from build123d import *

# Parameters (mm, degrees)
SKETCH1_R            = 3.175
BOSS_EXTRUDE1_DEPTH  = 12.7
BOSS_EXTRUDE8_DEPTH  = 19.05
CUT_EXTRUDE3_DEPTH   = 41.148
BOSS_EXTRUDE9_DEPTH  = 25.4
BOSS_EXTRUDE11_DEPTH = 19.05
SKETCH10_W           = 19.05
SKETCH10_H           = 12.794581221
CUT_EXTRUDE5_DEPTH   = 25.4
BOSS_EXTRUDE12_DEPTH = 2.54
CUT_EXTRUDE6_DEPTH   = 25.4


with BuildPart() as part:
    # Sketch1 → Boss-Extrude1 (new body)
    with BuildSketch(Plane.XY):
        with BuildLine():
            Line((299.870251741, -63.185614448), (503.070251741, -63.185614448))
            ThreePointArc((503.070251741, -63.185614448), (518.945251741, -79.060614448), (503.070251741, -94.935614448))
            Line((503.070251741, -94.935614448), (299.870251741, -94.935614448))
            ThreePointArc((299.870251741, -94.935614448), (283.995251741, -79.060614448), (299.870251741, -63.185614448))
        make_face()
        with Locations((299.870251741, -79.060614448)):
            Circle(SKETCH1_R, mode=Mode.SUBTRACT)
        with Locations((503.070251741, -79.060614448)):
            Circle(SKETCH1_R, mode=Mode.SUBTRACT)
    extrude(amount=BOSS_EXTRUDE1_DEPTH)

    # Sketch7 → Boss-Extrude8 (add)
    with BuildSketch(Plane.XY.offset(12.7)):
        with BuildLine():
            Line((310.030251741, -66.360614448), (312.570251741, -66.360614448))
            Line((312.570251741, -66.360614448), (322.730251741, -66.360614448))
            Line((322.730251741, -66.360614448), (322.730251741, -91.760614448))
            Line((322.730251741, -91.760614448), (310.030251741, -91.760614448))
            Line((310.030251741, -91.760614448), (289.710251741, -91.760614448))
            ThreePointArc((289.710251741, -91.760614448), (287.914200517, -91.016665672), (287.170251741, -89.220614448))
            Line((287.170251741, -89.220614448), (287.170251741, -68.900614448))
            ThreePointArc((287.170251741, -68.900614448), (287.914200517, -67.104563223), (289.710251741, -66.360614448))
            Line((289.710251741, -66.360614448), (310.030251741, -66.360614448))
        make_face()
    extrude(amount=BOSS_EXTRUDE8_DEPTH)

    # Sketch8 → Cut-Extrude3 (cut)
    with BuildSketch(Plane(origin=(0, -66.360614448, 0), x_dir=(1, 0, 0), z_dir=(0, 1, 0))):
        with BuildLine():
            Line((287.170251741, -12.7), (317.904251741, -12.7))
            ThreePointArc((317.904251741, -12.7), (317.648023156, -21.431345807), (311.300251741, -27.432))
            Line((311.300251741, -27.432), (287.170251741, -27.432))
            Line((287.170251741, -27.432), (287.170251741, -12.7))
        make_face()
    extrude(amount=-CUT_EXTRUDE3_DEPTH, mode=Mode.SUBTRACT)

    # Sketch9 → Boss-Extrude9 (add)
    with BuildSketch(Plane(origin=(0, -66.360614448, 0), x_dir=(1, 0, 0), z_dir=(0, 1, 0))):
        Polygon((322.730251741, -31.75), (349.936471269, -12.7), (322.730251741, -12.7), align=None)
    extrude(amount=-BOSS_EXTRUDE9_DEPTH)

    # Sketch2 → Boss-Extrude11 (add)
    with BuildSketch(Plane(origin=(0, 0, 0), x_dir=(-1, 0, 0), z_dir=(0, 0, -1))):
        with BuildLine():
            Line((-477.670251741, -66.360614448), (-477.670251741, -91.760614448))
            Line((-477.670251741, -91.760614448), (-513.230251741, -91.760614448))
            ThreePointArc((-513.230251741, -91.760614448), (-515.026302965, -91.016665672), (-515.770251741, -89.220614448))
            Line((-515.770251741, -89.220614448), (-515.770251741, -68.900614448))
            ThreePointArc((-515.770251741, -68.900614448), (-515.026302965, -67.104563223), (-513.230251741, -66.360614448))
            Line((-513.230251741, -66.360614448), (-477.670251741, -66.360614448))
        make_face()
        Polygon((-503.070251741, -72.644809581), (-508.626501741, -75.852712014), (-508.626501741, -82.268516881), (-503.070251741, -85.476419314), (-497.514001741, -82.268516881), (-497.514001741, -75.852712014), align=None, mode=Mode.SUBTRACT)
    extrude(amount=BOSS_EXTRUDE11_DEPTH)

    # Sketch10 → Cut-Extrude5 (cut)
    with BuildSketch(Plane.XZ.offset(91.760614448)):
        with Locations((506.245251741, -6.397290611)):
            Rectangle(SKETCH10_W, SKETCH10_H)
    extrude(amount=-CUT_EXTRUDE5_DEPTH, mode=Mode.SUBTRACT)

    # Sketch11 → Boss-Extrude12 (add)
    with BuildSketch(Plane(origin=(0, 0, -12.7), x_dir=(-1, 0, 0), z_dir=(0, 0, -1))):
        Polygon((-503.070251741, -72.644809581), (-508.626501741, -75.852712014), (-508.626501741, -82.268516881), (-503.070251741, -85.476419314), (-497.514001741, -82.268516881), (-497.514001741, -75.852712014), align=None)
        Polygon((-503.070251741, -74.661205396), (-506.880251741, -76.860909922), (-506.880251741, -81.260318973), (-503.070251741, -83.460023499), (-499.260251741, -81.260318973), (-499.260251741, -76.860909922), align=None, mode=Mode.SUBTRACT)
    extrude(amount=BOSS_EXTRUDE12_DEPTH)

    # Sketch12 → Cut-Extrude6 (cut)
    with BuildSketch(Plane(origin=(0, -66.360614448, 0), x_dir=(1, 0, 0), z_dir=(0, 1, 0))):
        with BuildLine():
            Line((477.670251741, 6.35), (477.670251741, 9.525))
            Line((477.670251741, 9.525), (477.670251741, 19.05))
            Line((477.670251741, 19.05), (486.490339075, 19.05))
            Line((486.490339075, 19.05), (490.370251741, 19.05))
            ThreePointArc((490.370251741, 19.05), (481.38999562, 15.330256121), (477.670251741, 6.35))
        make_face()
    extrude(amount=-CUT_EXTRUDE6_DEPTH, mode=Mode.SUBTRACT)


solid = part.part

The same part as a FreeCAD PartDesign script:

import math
import FreeCAD as App
import Part
import Sketcher
Q = App.Units.Quantity


def add_polygon(sketch, points):
    """Adds a closed chain of lines whose ends are joined by coincident constraints."""
    first, n = sketch.GeometryCount, len(points)
    for a, b in zip(points, points[1:] + points[:1]):
        sketch.addGeometry(Part.LineSegment(App.Vector(*a, 0), App.Vector(*b, 0)), False)
    for i in range(n):
        sketch.addConstraint(Sketcher.Constraint("Coincident", first + i, 2, first + (i + 1) % n, 1))

doc = App.newDocument("Part")
body = doc.addObject("PartDesign::Body", "Body")

# Sketch on XY plane
sketch1 = body.newObject("Sketcher::SketchObject", "Sketch")
sketch1.AttachmentSupport = (doc.getObject("XY_Plane"), [""])
sketch1.MapMode = "FlatFace"
sketch1.addGeometry([
    Part.LineSegment(App.Vector(503.1, -63.2, 0), App.Vector(299.9, -63.2, 0)),  # 0
    Part.ArcOfCircle(Part.Circle(App.Vector(299.9, -79.1, 0), App.Vector(0, 0, 1), 15.9), math.radians(90), math.radians(270)),  # 1
    Part.LineSegment(App.Vector(299.9, -94.9, 0), App.Vector(503.1, -94.9, 0)),  # 2
    Part.ArcOfCircle(Part.Circle(App.Vector(503.1, -79.1, 0), App.Vector(0, 0, 1), 15.9), math.radians(-90), math.radians(90)),  # 3
    Part.Circle(App.Vector(503.1, -79.1, 0), App.Vector(0, 0, 1), 3.2),  # 4
    Part.Circle(App.Vector(299.9, -79.1, 0), App.Vector(0, 0, 1), 3.2),  # 5
], False)
sketch1.addConstraint([
    Sketcher.Constraint("Tangent", 0, 2, 1, 1),
    Sketcher.Constraint("Tangent", 1, 2, 2, 1),
    Sketcher.Constraint("Tangent", 2, 2, 3, 1),
    Sketcher.Constraint("Tangent", 3, 2, 0, 1),
    Sketcher.Constraint("Horizontal", 0),
    Sketcher.Constraint("Horizontal", 2),
    Sketcher.Constraint("Coincident", 4, 3, 3, 3),
    Sketcher.Constraint("Coincident", 5, 3, 1, 3),
    Sketcher.Constraint("Equal", 4, 5),
    Sketcher.Constraint("Diameter", 4, Q("0.25 in")),
    Sketcher.Constraint("DistanceX", 0, 2, 0, 1, Q("8 in")),
    Sketcher.Constraint("Radius", 1, Q("0.625 in")),
    Sketcher.Constraint("DistanceX", -1, 1, 1, 3, 299.870252),
    Sketcher.Constraint("DistanceY", 1, 3, -1, 1, 79.060614),
])
pad1 = body.newObject("PartDesign::Pad", "Pad")
pad1.Profile = sketch1
pad1.Length = Q("0.5 in")

# Sketch on XY plane
sketch2 = body.newObject("Sketcher::SketchObject", "Sketch001")
sketch2.AttachmentSupport = (doc.getObject("XY_Plane"), [""])
sketch2.MapMode = "FlatFace"
sketch2.AttachmentOffset = App.Placement(App.Vector(0, 0, 0.5 * 25.4), App.Rotation())
sketch2.addGeometry([
    Part.LineSegment(App.Vector(322.7, -91.8, 0), App.Vector(322.7, -66.4, 0)),  # 0
    Part.LineSegment(App.Vector(322.7, -66.4, 0), App.Vector(289.7, -66.4, 0)),  # 1
    Part.ArcOfCircle(Part.Circle(App.Vector(289.7, -68.9, 0), App.Vector(0, 0, 1), 2.5), math.radians(90), math.radians(180)),  # 2
    Part.LineSegment(App.Vector(287.2, -68.9, 0), App.Vector(287.2, -89.2, 0)),  # 3
    Part.ArcOfCircle(Part.Circle(App.Vector(289.7, -89.2, 0), App.Vector(0, 0, 1), 2.5), math.radians(-180), math.radians(-90)),  # 4
    Part.LineSegment(App.Vector(289.7, -91.8, 0), App.Vector(322.7, -91.8, 0)),  # 5
], False)
sketch2.addConstraint([
    Sketcher.Constraint("Coincident", 0, 2, 1, 1),
    Sketcher.Constraint("Tangent", 1, 2, 2, 1),
    Sketcher.Constraint("Tangent", 2, 2, 3, 1),
    Sketcher.Constraint("Tangent", 3, 2, 4, 1),
    Sketcher.Constraint("Tangent", 4, 2, 5, 1),
    Sketcher.Constraint("Coincident", 5, 2, 0, 1),
    Sketcher.Constraint("Vertical", 0),
    Sketcher.Constraint("Horizontal", 1),
    Sketcher.Constraint("Vertical", 3),
    Sketcher.Constraint("Horizontal", 5),
    Sketcher.Constraint("Equal", 2, 4),
    Sketcher.Constraint("Radius", 2, Q("0.1 in")),
    Sketcher.Constraint("DistanceY", 0, 1, 0, 2, Q("1 in")),
    Sketcher.Constraint("DistanceX", 1, 2, 1, 1, Q("1.3 in")),
    Sketcher.Constraint("DistanceX", -1, 1, 2, 3, 289.710252),
    Sketcher.Constraint("DistanceY", 2, 3, -1, 1, 68.900614),
])
pad2 = body.newObject("PartDesign::Pad", "Pad001")
pad2.Profile = sketch2
pad2.Length = Q("0.75 in")

# Sketch on XZ plane
sketch3 = body.newObject("Sketcher::SketchObject", "Sketch002")
sketch3.AttachmentSupport = (doc.getObject("XZ_Plane"), [""])
sketch3.MapMode = "FlatFace"
sketch3.AttachmentOffset = App.Placement(App.Vector(0, 0, 66.360614), App.Rotation())
sketch3.addGeometry([
    Part.LineSegment(App.Vector(318, 13, 0), App.Vector(287, 13, 0)),
    Part.LineSegment(App.Vector(287, 13, 0), App.Vector(287, 27, 0)),
    Part.LineSegment(App.Vector(287, 27, 0), App.Vector(311, 27, 0)),
    Part.ArcOfCircle(Part.Circle(App.Vector(307, 17, 0), App.Vector(0, 0, 1), 11), math.radians(-21), math.radians(69)),
], False)
sketch3.addConstraint([
    Sketcher.Constraint("Coincident", 0, 2, 1, 1),
    Sketcher.Constraint("Coincident", 1, 2, 2, 1),
    Sketcher.Constraint("Coincident", 2, 2, 3, 2),
    Sketcher.Constraint("Coincident", 3, 1, 0, 1),
    Sketcher.Constraint("Horizontal", 0),
    Sketcher.Constraint("Vertical", 1),
    Sketcher.Constraint("Horizontal", 2),
    Sketcher.Constraint("Radius", 3, Q("0.45 in")),
    Sketcher.Constraint("DistanceX", 0, 2, 0, 1, Q("1.21 in")),
    Sketcher.Constraint("DistanceX", 2, 1, 2, 2, Q("0.95 in")),
    Sketcher.Constraint("DistanceY", 1, 1, 1, 2, Q("0.58 in")),
    Sketcher.Constraint("DistanceY", -1, 1, 0, 2, Q("0.5 in")),
    Sketcher.Constraint("DistanceX", -1, 1, 3, 3, 307.218042),
])
pocket1 = body.newObject("PartDesign::Pocket", "Pocket")
pocket1.Profile = sketch3
pocket1.Length = Q("1.62 in")
pocket1.Reversed = True

# Sketch on XZ plane
sketch4 = body.newObject("Sketcher::SketchObject", "Sketch003")
sketch4.AttachmentSupport = (doc.getObject("XZ_Plane"), [""])
sketch4.MapMode = "FlatFace"
sketch4.AttachmentOffset = App.Placement(App.Vector(0, 0, 66.360614), App.Rotation())
add_polygon(sketch4, [(323, 32), (350, 13), (323, 13)])  # lines 0-2
sketch4.addConstraint([
    Sketcher.Constraint("Horizontal", 1),
    Sketcher.Constraint("Vertical", 2),
    Sketcher.Constraint("Angle", 0, Q("-35 deg")),
    Sketcher.Constraint("DistanceY", 2, 1, 2, 2, Q("0.75 in")),
    Sketcher.Constraint("DistanceY", -1, 1, 0, 2, Q("0.5 in")),
    Sketcher.Constraint("DistanceX", -1, 1, 0, 2, 349.936471),
])
pad3 = body.newObject("PartDesign::Pad", "Pad002")
pad3.Profile = sketch4
pad3.Length = Q("1 in")

# Sketch on XY plane
sketch5 = body.newObject("Sketcher::SketchObject", "Sketch004")
sketch5.AttachmentSupport = (doc.getObject("XY_Plane"), [""])
sketch5.MapMode = "FlatFace"
sketch5.addGeometry(Part.LineSegment(App.Vector(477.7, -91.8, 0), App.Vector(477.7, -66.4, 0)), False)  # 0
sketch5.addGeometry(Part.LineSegment(App.Vector(477.7, -66.4, 0), App.Vector(513.2, -66.4, 0)), False)  # 1
sketch5.addGeometry(Part.ArcOfCircle(Part.Circle(App.Vector(513.2, -68.9, 0), App.Vector(0, 0, 1), 2.5), math.radians(0), math.radians(90)), False)  # 2
sketch5.addGeometry(Part.LineSegment(App.Vector(515.8, -68.9, 0), App.Vector(515.8, -89.2, 0)), False)  # 3
sketch5.addGeometry(Part.ArcOfCircle(Part.Circle(App.Vector(513.2, -89.2, 0), App.Vector(0, 0, 1), 2.5), math.radians(-90), math.radians(0)), False)  # 4
sketch5.addGeometry(Part.LineSegment(App.Vector(513.2, -91.8, 0), App.Vector(477.7, -91.8, 0)), False)  # 5
add_polygon(sketch5, [(503.1, -72.6), (497.5, -75.9), (497.5, -82.3), (503.1, -85.5), (508.6, -82.3), (508.6, -75.9)])  # lines 6-11
sketch5.addConstraint([
    Sketcher.Constraint("Coincident", 0, 2, 1, 1),
    Sketcher.Constraint("Tangent", 1, 2, 2, 2),
    Sketcher.Constraint("Tangent", 2, 1, 3, 1),
    Sketcher.Constraint("Tangent", 3, 2, 4, 2),
    Sketcher.Constraint("Tangent", 4, 1, 5, 1),
    Sketcher.Constraint("Coincident", 5, 2, 0, 1),
    Sketcher.Constraint("Vertical", 0),
    Sketcher.Constraint("Horizontal", 1),
    Sketcher.Constraint("Vertical", 3),
    Sketcher.Constraint("Horizontal", 5),
    Sketcher.Constraint("Vertical", 7),
    Sketcher.Constraint("Vertical", 10),
    Sketcher.Constraint("Equal", 2, 4),
    Sketcher.Constraint("Parallel", 6, 9),
    Sketcher.Constraint("Parallel", 8, 11),
    Sketcher.Constraint("Horizontal", 7, 2, 9, 2),
    Sketcher.Constraint("Horizontal", 6, 2, 10, 2),
    Sketcher.Constraint("Vertical", 8, 2, 11, 2),
    Sketcher.Constraint("Radius", 2, Q("0.1 in")),
    Sketcher.Constraint("DistanceY", 0, 1, 0, 2, Q("1 in")),
    Sketcher.Constraint("DistanceX", 1, 1, 1, 2, Q("1.4 in")),
    Sketcher.Constraint("Angle", 6, Q("-150 deg")),
    Sketcher.Constraint("DistanceX", 8, 2, 4, 3, Q("0.4 in")),
    Sketcher.Constraint("DistanceX", 6, 2, 2, 1, Q("0.71875 in")),
    Sketcher.Constraint("DistanceX", -1, 1, 6, 2, 497.514002),
    Sketcher.Constraint("DistanceY", 7, 2, 7, 1, 6.415805),
    Sketcher.Constraint("DistanceY", 8, 2, -1, 1, 85.476419),
    Sketcher.Constraint("DistanceY", 2, 3, -1, 1, 68.900614),
])
pad4 = body.newObject("PartDesign::Pad", "Pad003")
pad4.Profile = sketch5
pad4.Length = Q("0.75 in")
pad4.Reversed = True

# Sketch on XZ plane
sketch6 = body.newObject("Sketcher::SketchObject", "Sketch005")
sketch6.AttachmentSupport = (doc.getObject("XZ_Plane"), [""])
sketch6.MapMode = "FlatFace"
sketch6.AttachmentOffset = App.Placement(App.Vector(0, 0, 91.760614), App.Rotation())
add_polygon(sketch6, [(497, 0), (497, -13), (516, -13), (516, 0)])  # lines 0-3
sketch6.addConstraint([
    Sketcher.Constraint("Vertical", 0),
    Sketcher.Constraint("Horizontal", 1),
    Sketcher.Constraint("Vertical", 2),
    Sketcher.Constraint("Horizontal", 3),
    Sketcher.Constraint("PointOnObject", 2, 2, -1),
    Sketcher.Constraint("DistanceX", 1, 1, 1, 2, Q("0.75 in")),
    Sketcher.Constraint("DistanceY", 0, 2, 0, 1, 12.794581),
    Sketcher.Constraint("DistanceX", -1, 1, 0, 2, 496.720252),
])
pocket2 = body.newObject("PartDesign::Pocket", "Pocket001")
pocket2.Profile = sketch6
pocket2.Length = Q("1 in")

# Sketch on XY plane
sketch7 = body.newObject("Sketcher::SketchObject", "Sketch006")
sketch7.AttachmentSupport = (doc.getObject("XY_Plane"), [""])
sketch7.MapMode = "FlatFace"
sketch7.AttachmentOffset = App.Placement(App.Vector(0, 0, -0.5 * 25.4), App.Rotation())
add_polygon(sketch7, [(503.1, -72.6), (508.6, -75.9), (508.6, -82.3), (503.1, -85.5), (497.5, -82.3), (497.5, -75.9)])  # lines 0-5
add_polygon(sketch7, [(506.9, -76.9), (503.1, -74.7), (499.3, -76.9), (499.3, -81.3), (503.1, -83.5), (506.9, -81.3)])  # lines 6-11
sketch7.addConstraint([
    Sketcher.Constraint("Vertical", 1),
    Sketcher.Constraint("Vertical", 4),
    Sketcher.Constraint("Vertical", 8),
    Sketcher.Constraint("Vertical", 11),
    Sketcher.Constraint("Parallel", 0, 3),
    Sketcher.Constraint("Parallel", 2, 5),
    Sketcher.Constraint("Parallel", 3, 6),
    Sketcher.Constraint("Parallel", 5, 7),
    Sketcher.Constraint("Parallel", 6, 9),
    Sketcher.Constraint("Parallel", 7, 10),
    Sketcher.Constraint("Horizontal", 1, 2, 3, 2),
    Sketcher.Constraint("Horizontal", 0, 2, 4, 2),
    Sketcher.Constraint("Horizontal", 8, 2, 10, 2),
    Sketcher.Constraint("Horizontal", 7, 2, 11, 2),
    Sketcher.Constraint("Vertical", 2, 2, 5, 2),
    Sketcher.Constraint("Vertical", 5, 2, 6, 2),
    Sketcher.Constraint("Angle", 0, Q("-30 deg")),
    Sketcher.Constraint("DistanceX", 8, 2, 10, 2, Q("0.3 in")),
    Sketcher.Constraint("DistanceX", 2, 2, 1, 2, Q("0.21875 in")),
    Sketcher.Constraint("DistanceY", 8, 2, 8, 1, 4.399409),
    Sketcher.Constraint("DistanceX", -1, 1, 0, 2, 508.626502),
    Sketcher.Constraint("DistanceY", 7, 2, 5, 2, 4.2161),
    Sketcher.Constraint("DistanceY", 2, 2, 8, 2, 4.2161),
    Sketcher.Constraint("DistanceY", 2, 2, -1, 1, 85.476419),
])
pad5 = body.newObject("PartDesign::Pad", "Pad004")
pad5.Profile = sketch7
pad5.Length = Q("0.1 in")
pad5.Reversed = True

# Sketch on XZ plane
sketch8 = body.newObject("Sketcher::SketchObject", "Sketch007")
sketch8.AttachmentSupport = (doc.getObject("XZ_Plane"), [""])
sketch8.MapMode = "FlatFace"
sketch8.AttachmentOffset = App.Placement(App.Vector(0, 0, 66.360614), App.Rotation())
sketch8.addGeometry([
    Part.LineSegment(App.Vector(478, -19, 0), App.Vector(478, -6, 0)),
    Part.ArcOfCircle(Part.Circle(App.Vector(490, -6, 0), App.Vector(0, 0, 1), 13), math.radians(180), math.radians(270)),
    Part.LineSegment(App.Vector(490, -19, 0), App.Vector(478, -19, 0)),
], False)
sketch8.addConstraint([
    Sketcher.Constraint("Tangent", 0, 2, 1, 1),
    Sketcher.Constraint("Tangent", 1, 2, 2, 1),
    Sketcher.Constraint("Coincident", 2, 2, 0, 1),
    Sketcher.Constraint("Vertical", 0),
    Sketcher.Constraint("Horizontal", 2),
    Sketcher.Constraint("Radius", 1, Q("0.5 in")),
    Sketcher.Constraint("DistanceY", 1, 3, -1, 1, Q("0.25 in")),
    Sketcher.Constraint("DistanceX", -1, 1, 1, 3, 490.370252),
])
pocket3 = body.newObject("PartDesign::Pocket", "Pocket002")
pocket3.Profile = sketch8
pocket3.Length = Q("1 in")
pocket3.Reversed = True

doc.recompute()
